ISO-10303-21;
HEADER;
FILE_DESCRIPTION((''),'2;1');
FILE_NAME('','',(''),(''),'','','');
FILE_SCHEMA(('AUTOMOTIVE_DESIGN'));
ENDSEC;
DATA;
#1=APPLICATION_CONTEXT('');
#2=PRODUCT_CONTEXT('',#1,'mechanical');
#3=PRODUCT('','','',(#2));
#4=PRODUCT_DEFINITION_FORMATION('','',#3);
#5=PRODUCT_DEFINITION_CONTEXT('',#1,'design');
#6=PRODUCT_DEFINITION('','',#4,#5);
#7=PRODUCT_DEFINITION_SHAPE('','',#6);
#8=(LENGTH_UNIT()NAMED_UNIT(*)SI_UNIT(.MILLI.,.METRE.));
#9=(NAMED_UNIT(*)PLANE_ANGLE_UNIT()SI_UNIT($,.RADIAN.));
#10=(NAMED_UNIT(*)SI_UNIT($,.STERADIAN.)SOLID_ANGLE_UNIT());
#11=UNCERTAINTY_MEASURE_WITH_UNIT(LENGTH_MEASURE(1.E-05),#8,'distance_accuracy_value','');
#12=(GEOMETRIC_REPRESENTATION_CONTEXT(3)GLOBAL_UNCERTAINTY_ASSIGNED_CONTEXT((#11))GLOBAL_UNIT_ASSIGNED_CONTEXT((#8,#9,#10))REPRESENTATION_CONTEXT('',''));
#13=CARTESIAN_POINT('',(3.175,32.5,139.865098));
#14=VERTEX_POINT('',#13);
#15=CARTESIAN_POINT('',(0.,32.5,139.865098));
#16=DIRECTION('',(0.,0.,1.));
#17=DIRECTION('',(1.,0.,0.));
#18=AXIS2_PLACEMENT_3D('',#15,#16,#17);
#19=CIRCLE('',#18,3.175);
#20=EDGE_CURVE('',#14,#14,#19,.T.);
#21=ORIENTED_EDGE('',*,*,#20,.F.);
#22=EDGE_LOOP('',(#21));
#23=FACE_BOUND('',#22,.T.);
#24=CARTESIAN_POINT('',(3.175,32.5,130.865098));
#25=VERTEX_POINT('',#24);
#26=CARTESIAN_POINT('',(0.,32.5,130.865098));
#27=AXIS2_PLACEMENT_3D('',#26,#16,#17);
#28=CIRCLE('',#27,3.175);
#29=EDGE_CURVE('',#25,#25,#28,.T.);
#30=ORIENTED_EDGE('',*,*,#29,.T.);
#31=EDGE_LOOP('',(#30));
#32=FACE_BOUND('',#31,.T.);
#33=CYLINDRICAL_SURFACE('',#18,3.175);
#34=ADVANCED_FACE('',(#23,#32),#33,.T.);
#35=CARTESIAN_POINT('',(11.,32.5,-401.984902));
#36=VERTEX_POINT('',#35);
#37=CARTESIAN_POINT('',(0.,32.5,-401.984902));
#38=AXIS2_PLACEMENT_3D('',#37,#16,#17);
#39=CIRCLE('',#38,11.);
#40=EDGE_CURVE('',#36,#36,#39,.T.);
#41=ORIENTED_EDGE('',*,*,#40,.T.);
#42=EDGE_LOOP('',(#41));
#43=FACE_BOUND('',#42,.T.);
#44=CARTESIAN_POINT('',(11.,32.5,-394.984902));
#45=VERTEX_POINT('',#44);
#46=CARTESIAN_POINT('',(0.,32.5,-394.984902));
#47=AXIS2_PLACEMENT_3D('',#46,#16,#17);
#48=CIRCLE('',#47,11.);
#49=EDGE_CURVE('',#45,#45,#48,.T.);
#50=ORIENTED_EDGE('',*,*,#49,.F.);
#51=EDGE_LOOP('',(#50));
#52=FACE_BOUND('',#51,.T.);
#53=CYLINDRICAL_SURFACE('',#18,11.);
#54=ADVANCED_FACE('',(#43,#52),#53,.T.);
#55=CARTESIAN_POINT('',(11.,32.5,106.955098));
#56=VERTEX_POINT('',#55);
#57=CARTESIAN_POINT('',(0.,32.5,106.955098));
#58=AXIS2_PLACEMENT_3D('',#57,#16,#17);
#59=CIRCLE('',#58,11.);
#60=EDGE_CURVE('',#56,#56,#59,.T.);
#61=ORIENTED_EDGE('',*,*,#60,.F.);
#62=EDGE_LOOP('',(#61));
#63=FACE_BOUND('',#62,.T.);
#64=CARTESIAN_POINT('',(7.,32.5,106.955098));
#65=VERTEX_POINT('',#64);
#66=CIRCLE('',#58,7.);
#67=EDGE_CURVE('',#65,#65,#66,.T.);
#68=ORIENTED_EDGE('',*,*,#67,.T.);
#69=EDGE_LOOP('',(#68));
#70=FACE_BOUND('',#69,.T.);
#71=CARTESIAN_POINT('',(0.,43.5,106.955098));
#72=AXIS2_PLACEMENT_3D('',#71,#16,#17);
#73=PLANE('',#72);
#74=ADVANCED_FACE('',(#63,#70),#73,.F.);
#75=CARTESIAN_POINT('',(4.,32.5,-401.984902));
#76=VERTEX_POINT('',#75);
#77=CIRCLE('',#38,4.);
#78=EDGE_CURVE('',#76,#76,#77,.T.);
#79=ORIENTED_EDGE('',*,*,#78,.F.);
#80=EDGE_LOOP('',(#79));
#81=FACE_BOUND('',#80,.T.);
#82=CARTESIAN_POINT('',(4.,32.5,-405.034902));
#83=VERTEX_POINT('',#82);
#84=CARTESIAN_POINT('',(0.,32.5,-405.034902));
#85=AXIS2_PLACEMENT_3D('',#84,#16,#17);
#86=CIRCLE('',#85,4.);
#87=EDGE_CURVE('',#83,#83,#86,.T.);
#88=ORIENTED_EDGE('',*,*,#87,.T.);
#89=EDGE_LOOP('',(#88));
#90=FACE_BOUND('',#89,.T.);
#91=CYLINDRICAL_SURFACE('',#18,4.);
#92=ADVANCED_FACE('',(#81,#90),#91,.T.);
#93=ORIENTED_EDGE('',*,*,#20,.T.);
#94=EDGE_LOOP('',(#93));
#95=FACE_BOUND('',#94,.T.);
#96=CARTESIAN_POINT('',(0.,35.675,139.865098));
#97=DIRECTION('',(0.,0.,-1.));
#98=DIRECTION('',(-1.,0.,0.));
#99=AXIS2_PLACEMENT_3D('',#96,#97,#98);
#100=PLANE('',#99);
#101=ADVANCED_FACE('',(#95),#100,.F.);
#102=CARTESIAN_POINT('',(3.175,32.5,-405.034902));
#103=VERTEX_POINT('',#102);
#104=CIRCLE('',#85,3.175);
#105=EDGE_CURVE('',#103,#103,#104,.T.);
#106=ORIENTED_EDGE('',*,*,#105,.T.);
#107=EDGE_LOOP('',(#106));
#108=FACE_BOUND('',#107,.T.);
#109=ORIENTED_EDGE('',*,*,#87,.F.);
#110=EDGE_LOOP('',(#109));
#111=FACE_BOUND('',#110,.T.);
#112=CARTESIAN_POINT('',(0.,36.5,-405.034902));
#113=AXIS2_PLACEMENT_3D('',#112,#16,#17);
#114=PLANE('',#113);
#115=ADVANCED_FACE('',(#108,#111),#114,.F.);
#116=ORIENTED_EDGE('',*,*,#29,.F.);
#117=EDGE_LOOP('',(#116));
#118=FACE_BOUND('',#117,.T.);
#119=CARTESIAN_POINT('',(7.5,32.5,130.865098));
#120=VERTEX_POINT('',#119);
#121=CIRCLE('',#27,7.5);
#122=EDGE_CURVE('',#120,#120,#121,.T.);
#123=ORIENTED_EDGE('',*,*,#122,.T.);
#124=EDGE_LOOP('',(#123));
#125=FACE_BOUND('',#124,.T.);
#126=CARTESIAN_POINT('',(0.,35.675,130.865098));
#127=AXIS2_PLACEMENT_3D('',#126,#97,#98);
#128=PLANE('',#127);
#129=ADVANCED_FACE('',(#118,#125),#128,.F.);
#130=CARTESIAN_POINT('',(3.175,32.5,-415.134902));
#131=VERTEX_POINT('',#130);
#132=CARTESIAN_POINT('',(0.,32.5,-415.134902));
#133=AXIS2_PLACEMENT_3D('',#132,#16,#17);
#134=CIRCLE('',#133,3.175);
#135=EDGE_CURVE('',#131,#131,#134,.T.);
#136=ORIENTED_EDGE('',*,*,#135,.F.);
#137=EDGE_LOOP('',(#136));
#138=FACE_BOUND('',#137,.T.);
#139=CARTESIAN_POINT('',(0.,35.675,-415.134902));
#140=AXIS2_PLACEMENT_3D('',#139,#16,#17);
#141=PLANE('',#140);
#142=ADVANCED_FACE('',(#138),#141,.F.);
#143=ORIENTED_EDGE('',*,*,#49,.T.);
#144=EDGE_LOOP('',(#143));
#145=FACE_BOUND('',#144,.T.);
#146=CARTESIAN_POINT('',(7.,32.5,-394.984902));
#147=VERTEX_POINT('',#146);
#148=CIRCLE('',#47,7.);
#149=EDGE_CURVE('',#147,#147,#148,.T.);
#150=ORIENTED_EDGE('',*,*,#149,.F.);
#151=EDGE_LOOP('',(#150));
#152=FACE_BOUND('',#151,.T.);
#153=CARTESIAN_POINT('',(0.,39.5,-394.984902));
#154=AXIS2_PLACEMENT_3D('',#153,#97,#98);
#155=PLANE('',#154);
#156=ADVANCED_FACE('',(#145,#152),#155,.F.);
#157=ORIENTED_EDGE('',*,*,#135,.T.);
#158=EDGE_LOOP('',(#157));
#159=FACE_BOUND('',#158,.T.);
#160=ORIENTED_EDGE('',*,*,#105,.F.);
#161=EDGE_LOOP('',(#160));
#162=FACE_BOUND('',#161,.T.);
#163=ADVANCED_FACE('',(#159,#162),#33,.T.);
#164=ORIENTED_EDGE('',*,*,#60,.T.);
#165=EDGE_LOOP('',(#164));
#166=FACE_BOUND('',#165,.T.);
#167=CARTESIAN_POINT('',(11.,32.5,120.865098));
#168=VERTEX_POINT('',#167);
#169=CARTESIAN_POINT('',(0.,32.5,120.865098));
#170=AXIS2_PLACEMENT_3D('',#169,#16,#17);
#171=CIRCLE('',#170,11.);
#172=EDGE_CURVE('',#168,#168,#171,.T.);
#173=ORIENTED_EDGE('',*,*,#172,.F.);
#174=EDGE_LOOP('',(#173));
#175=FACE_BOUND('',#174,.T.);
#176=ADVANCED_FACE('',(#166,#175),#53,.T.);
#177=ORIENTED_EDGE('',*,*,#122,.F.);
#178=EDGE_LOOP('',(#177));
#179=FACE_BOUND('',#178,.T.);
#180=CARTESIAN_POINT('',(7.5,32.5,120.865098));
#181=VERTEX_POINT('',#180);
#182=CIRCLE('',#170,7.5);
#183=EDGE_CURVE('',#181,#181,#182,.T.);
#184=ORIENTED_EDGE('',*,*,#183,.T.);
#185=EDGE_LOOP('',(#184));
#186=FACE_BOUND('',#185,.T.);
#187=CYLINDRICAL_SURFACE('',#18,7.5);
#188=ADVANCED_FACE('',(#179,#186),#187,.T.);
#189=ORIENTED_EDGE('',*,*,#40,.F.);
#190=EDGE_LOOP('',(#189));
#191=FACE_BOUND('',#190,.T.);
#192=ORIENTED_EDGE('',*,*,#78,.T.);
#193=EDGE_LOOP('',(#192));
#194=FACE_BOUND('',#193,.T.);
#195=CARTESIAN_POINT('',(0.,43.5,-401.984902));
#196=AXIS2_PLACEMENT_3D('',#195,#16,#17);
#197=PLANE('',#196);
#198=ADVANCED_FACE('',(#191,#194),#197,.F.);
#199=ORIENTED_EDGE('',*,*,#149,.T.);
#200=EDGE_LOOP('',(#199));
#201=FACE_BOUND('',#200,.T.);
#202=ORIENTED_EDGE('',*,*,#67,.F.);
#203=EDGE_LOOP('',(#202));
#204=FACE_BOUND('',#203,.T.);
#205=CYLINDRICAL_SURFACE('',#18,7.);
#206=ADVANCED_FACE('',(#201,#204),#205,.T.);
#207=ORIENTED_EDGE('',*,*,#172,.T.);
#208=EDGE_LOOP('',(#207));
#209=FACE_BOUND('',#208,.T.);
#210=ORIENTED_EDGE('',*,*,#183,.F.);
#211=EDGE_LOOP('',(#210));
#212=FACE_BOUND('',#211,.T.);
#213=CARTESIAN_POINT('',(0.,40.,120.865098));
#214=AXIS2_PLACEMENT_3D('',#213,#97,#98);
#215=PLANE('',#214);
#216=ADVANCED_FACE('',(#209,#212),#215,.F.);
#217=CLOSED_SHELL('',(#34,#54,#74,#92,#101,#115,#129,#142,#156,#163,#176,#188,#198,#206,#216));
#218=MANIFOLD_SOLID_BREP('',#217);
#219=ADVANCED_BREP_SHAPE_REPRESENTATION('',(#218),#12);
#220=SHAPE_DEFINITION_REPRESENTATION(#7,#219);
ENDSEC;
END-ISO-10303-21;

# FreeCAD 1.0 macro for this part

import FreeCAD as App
import Part
import Sketcher

doc = App.newDocument("Part")
params = doc.addObject("Spreadsheet::Sheet", "Params")
for row, (alias, value) in enumerate([
    ("sketch1_width", "7 mm"),
    ("sketch1_width2", "4 mm"),
    ("sketch1_height", "555 mm"),
    ("sketch1_height2", "10 mm"),
    ("sketch1_height3", "9 mm"),
    ("revolution_angle", "360 deg"),
], start=1):
    params.set(f"A{row}", alias)
    params.set(f"B{row}", "=" + value)
    params.setAlias(f"B{row}", alias)

body = doc.addObject("PartDesign::Body", "Body")

sketch1 = body.newObject("Sketcher::SketchObject", "Sketch")
sketch1.AttachmentSupport = (doc.getObject("YZ_Plane"), [""])
sketch1.MapMode = "FlatFace"
sketch1.addGeometry(Part.LineSegment(App.Vector(32.5, 139.9, 0), App.Vector(32.5, -415.1, 0)), False)
sketch1.addGeometry(Part.LineSegment(App.Vector(32.5, -415.1, 0), App.Vector(35.7, -415.1, 0)), False)
sketch1.addGeometry(Part.LineSegment(App.Vector(35.7, -415.1, 0), App.Vector(35.7, -405, 0)), False)
sketch1.addGeometry(Part.LineSegment(App.Vector(35.7, -405, 0), App.Vector(36.5, -405, 0)), False)
sketch1.addGeometry(Part.LineSegment(App.Vector(36.5, -405, 0), App.Vector(36.5, -402, 0)), False)
sketch1.addGeometry(Part.LineSegment(App.Vector(36.5, -402, 0), App.Vector(43.5, -402, 0)), False)
sketch1.addGeometry(Part.LineSegment(App.Vector(43.5, -402, 0), App.Vector(43.5, -395, 0)), False)
sketch1.addGeometry(Part.LineSegment(App.Vector(43.5, -395, 0), App.Vector(39.5, -395, 0)), False)
sketch1.addGeometry(Part.LineSegment(App.Vector(39.5, -395, 0), App.Vector(39.5, 107, 0)), False)
sketch1.addGeometry(Part.LineSegment(App.Vector(39.5, 107, 0), App.Vector(43.5, 107, 0)), False)
sketch1.addGeometry(Part.LineSegment(App.Vector(43.5, 107, 0), App.Vector(43.5, 120.9, 0)), False)
sketch1.addGeometry(Part.LineSegment(App.Vector(43.5, 120.9, 0), App.Vector(40, 120.9, 0)), False)
sketch1.addGeometry(Part.LineSegment(App.Vector(40, 120.9, 0), App.Vector(40, 130.9, 0)), False)
sketch1.addGeometry(Part.LineSegment(App.Vector(40, 130.9, 0), App.Vector(35.7, 130.9, 0)), False)
sketch1.addGeometry(Part.LineSegment(App.Vector(35.7, 130.9, 0), App.Vector(35.7, 139.9, 0)), False)
sketch1.addGeometry(Part.LineSegment(App.Vector(35.7, 139.9, 0), App.Vector(32.5, 139.9, 0)), False)
sketch1.addGeometry(Part.LineSegment(App.Vector(32.5, 139.9, 0), App.Vector(32.5, -415.1, 0)), True)
sketch1.addConstraint(Sketcher.Constraint("Coincident", 0, 2, 1, 1))
sketch1.addConstraint(Sketcher.Constraint("Coincident", 1, 2, 2, 1))
sketch1.addConstraint(Sketcher.Constraint("Coincident", 2, 2, 3, 1))
sketch1.addConstraint(Sketcher.Constraint("Coincident", 3, 2, 4, 1))
sketch1.addConstraint(Sketcher.Constraint("Coincident", 4, 2, 5, 1))
sketch1.addConstraint(Sketcher.Constraint("Coincident", 5, 2, 6, 1))
sketch1.addConstraint(Sketcher.Constraint("Coincident", 6, 2, 7, 1))
sketch1.addConstraint(Sketcher.Constraint("Coincident", 7, 2, 8, 1))
sketch1.addConstraint(Sketcher.Constraint("Coincident", 8, 2, 9, 1))
sketch1.addConstraint(Sketcher.Constraint("Coincident", 9, 2, 10, 1))
sketch1.addConstraint(Sketcher.Constraint("Coincident", 10, 2, 11, 1))
sketch1.addConstraint(Sketcher.Constraint("Coincident", 11, 2, 12, 1))
sketch1.addConstraint(Sketcher.Constraint("Coincident", 12, 2, 13, 1))
sketch1.addConstraint(Sketcher.Constraint("Coincident", 13, 2, 14, 1))
sketch1.addConstraint(Sketcher.Constraint("Coincident", 14, 2, 15, 1))
sketch1.addConstraint(Sketcher.Constraint("Coincident", 15, 2, 0, 1))
sketch1.addConstraint(Sketcher.Constraint("Vertical", 0))
sketch1.addConstraint(Sketcher.Constraint("Horizontal", 1))
sketch1.addConstraint(Sketcher.Constraint("Vertical", 2))
sketch1.addConstraint(Sketcher.Constraint("Horizontal", 3))
sketch1.addConstraint(Sketcher.Constraint("Vertical", 4))
sketch1.addConstraint(Sketcher.Constraint("Horizontal", 5))
sketch1.addConstraint(Sketcher.Constraint("Vertical", 6))
sketch1.addConstraint(Sketcher.Constraint("Horizontal", 7))
sketch1.addConstraint(Sketcher.Constraint("Vertical", 8))
sketch1.addConstraint(Sketcher.Constraint("Horizontal", 9))
sketch1.addConstraint(Sketcher.Constraint("Vertical", 10))
sketch1.addConstraint(Sketcher.Constraint("Horizontal", 11))
sketch1.addConstraint(Sketcher.Constraint("Vertical", 12))
sketch1.addConstraint(Sketcher.Constraint("Horizontal", 13))
sketch1.addConstraint(Sketcher.Constraint("Vertical", 14))
sketch1.addConstraint(Sketcher.Constraint("Horizontal", 15))
sketch1.addConstraint(Sketcher.Constraint("Vertical", 16))
sketch1.addConstraint(Sketcher.Constraint("Coincident", 16, 1, 15, 2))
sketch1.addConstraint(Sketcher.Constraint("Horizontal", 1, 2, 16, 2))
sketch1.addConstraint(Sketcher.Constraint("Vertical", 6, 2, 9, 2))
sketch1.addConstraint(Sketcher.Constraint("Vertical", 2, 2, 13, 2))
sketch1.addConstraint(Sketcher.Constraint("Equal", 5, 6))
sketch1.addConstraint(Sketcher.Constraint("DistanceX", 5, 1, 5, 2, 7.0))
sketch1.addConstraint(Sketcher.Constraint("DistanceX", 7, 2, 7, 1, 4.0))
sketch1.addConstraint(Sketcher.Constraint("DistanceY", 0, 2, 0, 1, 555.0))
sketch1.addConstraint(Sketcher.Constraint("DistanceY", 12, 1, 12, 2, 10.0))
sketch1.addConstraint(Sketcher.Constraint("DistanceY", 14, 1, 14, 2, 9.0))
sketch1.addConstraint(Sketcher.Constraint("DistanceX", 11, 2, 11, 1, 3.5))
sketch1.addConstraint(Sketcher.Constraint("DistanceY", 2, 1, 2, 2, 10.1))
sketch1.addConstraint(Sketcher.Constraint("DistanceX", -1, 1, 11, 2, 40.0))
sketch1.addConstraint(Sketcher.Constraint("DistanceX", 0, 2, 3, 2, 4.0))
sketch1.addConstraint(Sketcher.Constraint("DistanceY", 4, 1, 4, 2, 3.05))
sketch1.addConstraint(Sketcher.Constraint("DistanceY", 8, 1, 8, 2, 501.94))
sketch1.addConstraint(Sketcher.Constraint("DistanceX", 1, 1, 1, 2, 3.175))
sketch1.addConstraint(Sketcher.Constraint("DistanceY", 0, 2, -1, 1, 415.134902))
sketch1.setExpression("Constraints[38]", "Params.sketch1_width")
sketch1.setExpression("Constraints[39]", "Params.sketch1_width2")
sketch1.setExpression("Constraints[40]", "Params.sketch1_height")
sketch1.setExpression("Constraints[41]", "Params.sketch1_height2")
sketch1.setExpression("Constraints[42]", "Params.sketch1_height3")
revolution = body.newObject("PartDesign::Revolution", "Revolution")
revolution.Profile = sketch1
revolution.ReferenceAxis = (sketch1, ["Axis0"])
revolution.setExpression("Angle", "Params.revolution_angle")

doc.recompute()
